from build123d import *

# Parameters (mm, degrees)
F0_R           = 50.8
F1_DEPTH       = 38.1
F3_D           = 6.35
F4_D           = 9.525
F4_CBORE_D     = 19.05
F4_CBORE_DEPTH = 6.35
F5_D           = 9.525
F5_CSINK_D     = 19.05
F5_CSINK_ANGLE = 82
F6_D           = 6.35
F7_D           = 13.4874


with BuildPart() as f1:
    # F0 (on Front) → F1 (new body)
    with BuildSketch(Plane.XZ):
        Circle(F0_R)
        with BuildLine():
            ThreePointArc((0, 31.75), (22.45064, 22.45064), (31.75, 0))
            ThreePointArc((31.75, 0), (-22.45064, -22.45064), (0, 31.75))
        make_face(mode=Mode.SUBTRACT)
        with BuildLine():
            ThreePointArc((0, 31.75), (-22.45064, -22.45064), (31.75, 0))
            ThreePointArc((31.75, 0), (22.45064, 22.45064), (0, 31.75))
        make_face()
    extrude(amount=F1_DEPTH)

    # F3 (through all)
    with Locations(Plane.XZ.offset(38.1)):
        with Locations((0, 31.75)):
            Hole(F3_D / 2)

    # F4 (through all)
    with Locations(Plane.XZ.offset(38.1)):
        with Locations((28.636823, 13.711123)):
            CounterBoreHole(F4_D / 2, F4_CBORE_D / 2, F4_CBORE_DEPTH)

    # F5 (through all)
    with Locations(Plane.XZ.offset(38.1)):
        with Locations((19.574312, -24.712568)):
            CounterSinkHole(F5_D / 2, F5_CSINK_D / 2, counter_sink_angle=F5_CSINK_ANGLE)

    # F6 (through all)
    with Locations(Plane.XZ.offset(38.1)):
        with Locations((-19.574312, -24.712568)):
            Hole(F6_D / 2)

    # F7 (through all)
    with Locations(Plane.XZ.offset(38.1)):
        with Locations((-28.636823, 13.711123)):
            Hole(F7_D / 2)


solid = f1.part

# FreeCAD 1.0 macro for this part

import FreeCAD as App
import Part
import Sketcher
Q = App.Units.Quantity

doc = App.newDocument("Part")
params = doc.addObject("Spreadsheet::Sheet", "Params")
for row, (alias, value) in enumerate([
    ("sketch1_diameter", "4 in"),
    ("pad1_length", "1.5 in"),
    ("sketch2_diameter", "0.25 in"),
    ("hole_diameter", "0.25 in"),
    ("sketch3_diameter", "0.375 in"),
    ("hole2_diameter", "0.375 in"),
    ("hole2_cbore_diameter", "0.75 in"),
    ("hole2_cbore_depth", "0.25 in"),
    ("sketch4_diameter", "0.375 in"),
    ("hole3_diameter", "0.375 in"),
    ("hole3_csink_diameter", "0.75 in"),
    ("sketch5_diameter", "0.25 in"),
    ("hole4_diameter", "0.25 in"),
    ("sketch6_diameter", "0.531 in"),
    ("hole5_diameter", "0.531 in"),
], start=1):
    params.set(f"A{row}", alias)
    params.set(f"B{row}", "=" + value)
    params.setAlias(f"B{row}", alias)

body = doc.addObject("PartDesign::Body", "Body")

sketch1 = doc.addObject("Sketcher::SketchObject", "Sketch")
body.addObject(sketch1)
sketch1.AttachmentSupport = (doc.XZ_Plane, [""])
sketch1.MapMode = "FlatFace"
sketch1.addGeometry(Part.Circle(App.Vector(0, 0, 0), App.Vector(0, 0, 1), 51), False)
sketch1.addConstraint([
    Sketcher.Constraint("Coincident", 0, 3, -1, 1),
    Sketcher.Constraint("Diameter", 0, Q("4 in")),
])
sketch1.setExpression("Constraints[1]", "Params.sketch1_diameter")
pad1 = doc.addObject("PartDesign::Pad", "Pad")
body.addObject(pad1)
pad1.Profile = sketch1
pad1.setExpression("Length", "Params.pad1_length")

sketch2 = doc.addObject("Sketcher::SketchObject", "Sketch001")
body.addObject(sketch2)
sketch2.AttachmentSupport = (doc.XZ_Plane, [""])
sketch2.MapMode = "FlatFace"
sketch2.AttachmentOffset = App.Placement(App.Vector(0, 0, 1.5 * 25.4), App.Rotation())
sketch2.addGeometry(Part.Circle(App.Vector(0, 31.8, 0), App.Vector(0, 0, 1), 3.2), False)
sketch2.addConstraint([
    Sketcher.Constraint("PointOnObject", 0, 3, -2),
    Sketcher.Constraint("Diameter", 0, Q("0.25 in")),
    Sketcher.Constraint("DistanceY", -1, 1, 0, 3, Q("1.25 in")),
])
sketch2.setExpression("Constraints[1]", "Params.sketch2_diameter")
doc.recompute()
hole = doc.addObject("PartDesign::Hole", "Hole")
body.addObject(hole)
hole.Profile = sketch2
hole.ThreadType = "None"
hole.setExpression("Diameter", "Params.hole_diameter")
hole.DepthType = "ThroughAll"

sketch3 = doc.addObject("Sketcher::SketchObject", "Sketch002")
body.addObject(sketch3)
sketch3.AttachmentSupport = (doc.XZ_Plane, [""])
sketch3.MapMode = "FlatFace"
sketch3.AttachmentOffset = App.Placement(App.Vector(0, 0, 1.5 * 25.4), App.Rotation())
sketch3.addGeometry(Part.Circle(App.Vector(28.6, 13.7, 0), App.Vector(0, 0, 1), 4.8), False)
sketch3.addConstraint([
    Sketcher.Constraint("Diameter", 0, Q("0.375 in")),
    Sketcher.Constraint("DistanceX", -1, 1, 0, 3, 28.636823),
    Sketcher.Constraint("DistanceY", -1, 1, 0, 3, 13.711123),
])
sketch3.setExpression("Constraints[0]", "Params.sketch3_diameter")
doc.recompute()
hole2 = doc.addObject("PartDesign::Hole", "Hole001")
body.addObject(hole2)
hole2.Profile = sketch3
hole2.ThreadType = "None"
hole2.setExpression("Diameter", "Params.hole2_diameter")
hole2.DepthType = "ThroughAll"
hole2.HoleCutType = "Counterbore"
hole2.setExpression("HoleCutDiameter", "Params.hole2_cbore_diameter")
hole2.setExpression("HoleCutDepth", "Params.hole2_cbore_depth")

sketch4 = doc.addObject("Sketcher::SketchObject", "Sketch003")
body.addObject(sketch4)
sketch4.AttachmentSupport = (doc.XZ_Plane, [""])
sketch4.MapMode = "FlatFace"
sketch4.AttachmentOffset = App.Placement(App.Vector(0, 0, 1.5 * 25.4), App.Rotation())
sketch4.addGeometry(Part.Circle(App.Vector(19.6, -24.7, 0), App.Vector(0, 0, 1), 4.8), False)
sketch4.addConstraint([
    Sketcher.Constraint("Diameter", 0, Q("0.375 in")),
    Sketcher.Constraint("DistanceX", -1, 1, 0, 3, 19.574312),
    Sketcher.Constraint("DistanceY", 0, 3, -1, 1, 24.712568),
])
sketch4.setExpression("Constraints[0]", "Params.sketch4_diameter")
doc.recompute()
hole3 = doc.addObject("PartDesign::Hole", "Hole002")
body.addObject(hole3)
hole3.Profile = sketch4
hole3.ThreadType = "None"
hole3.setExpression("Diameter", "Params.hole3_diameter")
hole3.DepthType = "ThroughAll"
hole3.HoleCutType = "Countersink"
hole3.setExpression("HoleCutDiameter", "Params.hole3_csink_diameter")
hole3.HoleCutCountersinkAngle = 82

sketch5 = doc.addObject("Sketcher::SketchObject", "Sketch004")
body.addObject(sketch5)
sketch5.AttachmentSupport = (doc.XZ_Plane, [""])
sketch5.MapMode = "FlatFace"
sketch5.AttachmentOffset = App.Placement(App.Vector(0, 0, 1.5 * 25.4), App.Rotation())
sketch5.addGeometry(Part.Circle(App.Vector(-19.6, -24.7, 0), App.Vector(0, 0, 1), 3.2), False)
sketch5.addConstraint([
    Sketcher.Constraint("Diameter", 0, Q("0.25 in")),
    Sketcher.Constraint("DistanceX", 0, 3, -1, 1, 19.574312),
    Sketcher.Constraint("DistanceY", 0, 3, -1, 1, 24.712568),
])
sketch5.setExpression("Constraints[0]", "Params.sketch5_diameter")
doc.recompute()
hole4 = doc.addObject("PartDesign::Hole", "Hole003")
body.addObject(hole4)
hole4.Profile = sketch5
hole4.ThreadType = "None"
hole4.setExpression("Diameter", "Params.hole4_diameter")
hole4.DepthType = "ThroughAll"

sketch6 = doc.addObject("Sketcher::SketchObject", "Sketch005")
body.addObject(sketch6)
sketch6.AttachmentSupport = (doc.XZ_Plane, [""])
sketch6.MapMode = "FlatFace"
sketch6.AttachmentOffset = App.Placement(App.Vector(0, 0, 1.5 * 25.4), App.Rotation())
sketch6.addGeometry(Part.Circle(App.Vector(-29, 14, 0), App.Vector(0, 0, 1), 7), False)
sketch6.addConstraint([
    Sketcher.Constraint("Diameter", 0, Q("0.531 in")),
    Sketcher.Constraint("DistanceX", 0, 3, -1, 1, 28.636823),
    Sketcher.Constraint("DistanceY", -1, 1, 0, 3, 13.711123),
])
sketch6.setExpression("Constraints[0]", "Params.sketch6_diameter")
doc.recompute()
hole5 = doc.addObject("PartDesign::Hole", "Hole004")
body.addObject(hole5)
hole5.Profile = sketch6
hole5.ThreadType = "None"
hole5.setExpression("Diameter", "Params.hole5_diameter")
hole5.DepthType = "ThroughAll"

doc.recompute()
